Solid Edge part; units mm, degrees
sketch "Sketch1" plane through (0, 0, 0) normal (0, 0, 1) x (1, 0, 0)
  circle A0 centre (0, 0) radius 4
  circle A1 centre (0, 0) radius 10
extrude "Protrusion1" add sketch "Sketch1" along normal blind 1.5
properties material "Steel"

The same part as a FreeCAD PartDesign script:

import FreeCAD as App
import Part
import Sketcher
from FreeCAD import Vector
Q = App.Units.Quantity

doc = App.newDocument("Part")
params = doc.addObject("Spreadsheet::Sheet", "Params")
for row, (alias, value) in enumerate([
    ("sketch1_diameter", "20 mm"),
    ("sketch1_diameter2", "8 mm"),
    ("pad1_length", "1.5 mm"),
], start=1):
    params.set(f"A{row}", alias)
    params.set(f"B{row}", "=" + value)
    params.setAlias(f"B{row}", alias)

body = doc.addObject("PartDesign::Body", "Body")

sketch1 = body.newObject("Sketcher::SketchObject", "Sketch")
sketch1.AttachmentSupport = (doc.getObject("XY_Plane"), [""])
sketch1.MapMode = "FlatFace"
sketch1.addGeometry([
    Part.Circle(Vector(0, 0, 0), Vector(0, 0, 1), 10),
    Part.Circle(Vector(0, 0, 0), Vector(0, 0, 1), 4),
], False)
sketch1.addConstraint([
    Sketcher.Constraint("Coincident", 0, 3, -1, 1),
    Sketcher.Constraint("Coincident", 1, 3, -1, 1),
    Sketcher.Constraint("Diameter", 0, Q("20 mm")),
    Sketcher.Constraint("Diameter", 1, Q("8 mm")),
])
sketch1.setExpression("Constraints[2]", "Params.sketch1_diameter")
sketch1.setExpression("Constraints[3]", "Params.sketch1_diameter2")
pad1 = body.newObject("PartDesign::Pad", "Pad")
pad1.Profile = sketch1
pad1.setExpression("Length", "Params.pad1_length")

doc.recompute()
